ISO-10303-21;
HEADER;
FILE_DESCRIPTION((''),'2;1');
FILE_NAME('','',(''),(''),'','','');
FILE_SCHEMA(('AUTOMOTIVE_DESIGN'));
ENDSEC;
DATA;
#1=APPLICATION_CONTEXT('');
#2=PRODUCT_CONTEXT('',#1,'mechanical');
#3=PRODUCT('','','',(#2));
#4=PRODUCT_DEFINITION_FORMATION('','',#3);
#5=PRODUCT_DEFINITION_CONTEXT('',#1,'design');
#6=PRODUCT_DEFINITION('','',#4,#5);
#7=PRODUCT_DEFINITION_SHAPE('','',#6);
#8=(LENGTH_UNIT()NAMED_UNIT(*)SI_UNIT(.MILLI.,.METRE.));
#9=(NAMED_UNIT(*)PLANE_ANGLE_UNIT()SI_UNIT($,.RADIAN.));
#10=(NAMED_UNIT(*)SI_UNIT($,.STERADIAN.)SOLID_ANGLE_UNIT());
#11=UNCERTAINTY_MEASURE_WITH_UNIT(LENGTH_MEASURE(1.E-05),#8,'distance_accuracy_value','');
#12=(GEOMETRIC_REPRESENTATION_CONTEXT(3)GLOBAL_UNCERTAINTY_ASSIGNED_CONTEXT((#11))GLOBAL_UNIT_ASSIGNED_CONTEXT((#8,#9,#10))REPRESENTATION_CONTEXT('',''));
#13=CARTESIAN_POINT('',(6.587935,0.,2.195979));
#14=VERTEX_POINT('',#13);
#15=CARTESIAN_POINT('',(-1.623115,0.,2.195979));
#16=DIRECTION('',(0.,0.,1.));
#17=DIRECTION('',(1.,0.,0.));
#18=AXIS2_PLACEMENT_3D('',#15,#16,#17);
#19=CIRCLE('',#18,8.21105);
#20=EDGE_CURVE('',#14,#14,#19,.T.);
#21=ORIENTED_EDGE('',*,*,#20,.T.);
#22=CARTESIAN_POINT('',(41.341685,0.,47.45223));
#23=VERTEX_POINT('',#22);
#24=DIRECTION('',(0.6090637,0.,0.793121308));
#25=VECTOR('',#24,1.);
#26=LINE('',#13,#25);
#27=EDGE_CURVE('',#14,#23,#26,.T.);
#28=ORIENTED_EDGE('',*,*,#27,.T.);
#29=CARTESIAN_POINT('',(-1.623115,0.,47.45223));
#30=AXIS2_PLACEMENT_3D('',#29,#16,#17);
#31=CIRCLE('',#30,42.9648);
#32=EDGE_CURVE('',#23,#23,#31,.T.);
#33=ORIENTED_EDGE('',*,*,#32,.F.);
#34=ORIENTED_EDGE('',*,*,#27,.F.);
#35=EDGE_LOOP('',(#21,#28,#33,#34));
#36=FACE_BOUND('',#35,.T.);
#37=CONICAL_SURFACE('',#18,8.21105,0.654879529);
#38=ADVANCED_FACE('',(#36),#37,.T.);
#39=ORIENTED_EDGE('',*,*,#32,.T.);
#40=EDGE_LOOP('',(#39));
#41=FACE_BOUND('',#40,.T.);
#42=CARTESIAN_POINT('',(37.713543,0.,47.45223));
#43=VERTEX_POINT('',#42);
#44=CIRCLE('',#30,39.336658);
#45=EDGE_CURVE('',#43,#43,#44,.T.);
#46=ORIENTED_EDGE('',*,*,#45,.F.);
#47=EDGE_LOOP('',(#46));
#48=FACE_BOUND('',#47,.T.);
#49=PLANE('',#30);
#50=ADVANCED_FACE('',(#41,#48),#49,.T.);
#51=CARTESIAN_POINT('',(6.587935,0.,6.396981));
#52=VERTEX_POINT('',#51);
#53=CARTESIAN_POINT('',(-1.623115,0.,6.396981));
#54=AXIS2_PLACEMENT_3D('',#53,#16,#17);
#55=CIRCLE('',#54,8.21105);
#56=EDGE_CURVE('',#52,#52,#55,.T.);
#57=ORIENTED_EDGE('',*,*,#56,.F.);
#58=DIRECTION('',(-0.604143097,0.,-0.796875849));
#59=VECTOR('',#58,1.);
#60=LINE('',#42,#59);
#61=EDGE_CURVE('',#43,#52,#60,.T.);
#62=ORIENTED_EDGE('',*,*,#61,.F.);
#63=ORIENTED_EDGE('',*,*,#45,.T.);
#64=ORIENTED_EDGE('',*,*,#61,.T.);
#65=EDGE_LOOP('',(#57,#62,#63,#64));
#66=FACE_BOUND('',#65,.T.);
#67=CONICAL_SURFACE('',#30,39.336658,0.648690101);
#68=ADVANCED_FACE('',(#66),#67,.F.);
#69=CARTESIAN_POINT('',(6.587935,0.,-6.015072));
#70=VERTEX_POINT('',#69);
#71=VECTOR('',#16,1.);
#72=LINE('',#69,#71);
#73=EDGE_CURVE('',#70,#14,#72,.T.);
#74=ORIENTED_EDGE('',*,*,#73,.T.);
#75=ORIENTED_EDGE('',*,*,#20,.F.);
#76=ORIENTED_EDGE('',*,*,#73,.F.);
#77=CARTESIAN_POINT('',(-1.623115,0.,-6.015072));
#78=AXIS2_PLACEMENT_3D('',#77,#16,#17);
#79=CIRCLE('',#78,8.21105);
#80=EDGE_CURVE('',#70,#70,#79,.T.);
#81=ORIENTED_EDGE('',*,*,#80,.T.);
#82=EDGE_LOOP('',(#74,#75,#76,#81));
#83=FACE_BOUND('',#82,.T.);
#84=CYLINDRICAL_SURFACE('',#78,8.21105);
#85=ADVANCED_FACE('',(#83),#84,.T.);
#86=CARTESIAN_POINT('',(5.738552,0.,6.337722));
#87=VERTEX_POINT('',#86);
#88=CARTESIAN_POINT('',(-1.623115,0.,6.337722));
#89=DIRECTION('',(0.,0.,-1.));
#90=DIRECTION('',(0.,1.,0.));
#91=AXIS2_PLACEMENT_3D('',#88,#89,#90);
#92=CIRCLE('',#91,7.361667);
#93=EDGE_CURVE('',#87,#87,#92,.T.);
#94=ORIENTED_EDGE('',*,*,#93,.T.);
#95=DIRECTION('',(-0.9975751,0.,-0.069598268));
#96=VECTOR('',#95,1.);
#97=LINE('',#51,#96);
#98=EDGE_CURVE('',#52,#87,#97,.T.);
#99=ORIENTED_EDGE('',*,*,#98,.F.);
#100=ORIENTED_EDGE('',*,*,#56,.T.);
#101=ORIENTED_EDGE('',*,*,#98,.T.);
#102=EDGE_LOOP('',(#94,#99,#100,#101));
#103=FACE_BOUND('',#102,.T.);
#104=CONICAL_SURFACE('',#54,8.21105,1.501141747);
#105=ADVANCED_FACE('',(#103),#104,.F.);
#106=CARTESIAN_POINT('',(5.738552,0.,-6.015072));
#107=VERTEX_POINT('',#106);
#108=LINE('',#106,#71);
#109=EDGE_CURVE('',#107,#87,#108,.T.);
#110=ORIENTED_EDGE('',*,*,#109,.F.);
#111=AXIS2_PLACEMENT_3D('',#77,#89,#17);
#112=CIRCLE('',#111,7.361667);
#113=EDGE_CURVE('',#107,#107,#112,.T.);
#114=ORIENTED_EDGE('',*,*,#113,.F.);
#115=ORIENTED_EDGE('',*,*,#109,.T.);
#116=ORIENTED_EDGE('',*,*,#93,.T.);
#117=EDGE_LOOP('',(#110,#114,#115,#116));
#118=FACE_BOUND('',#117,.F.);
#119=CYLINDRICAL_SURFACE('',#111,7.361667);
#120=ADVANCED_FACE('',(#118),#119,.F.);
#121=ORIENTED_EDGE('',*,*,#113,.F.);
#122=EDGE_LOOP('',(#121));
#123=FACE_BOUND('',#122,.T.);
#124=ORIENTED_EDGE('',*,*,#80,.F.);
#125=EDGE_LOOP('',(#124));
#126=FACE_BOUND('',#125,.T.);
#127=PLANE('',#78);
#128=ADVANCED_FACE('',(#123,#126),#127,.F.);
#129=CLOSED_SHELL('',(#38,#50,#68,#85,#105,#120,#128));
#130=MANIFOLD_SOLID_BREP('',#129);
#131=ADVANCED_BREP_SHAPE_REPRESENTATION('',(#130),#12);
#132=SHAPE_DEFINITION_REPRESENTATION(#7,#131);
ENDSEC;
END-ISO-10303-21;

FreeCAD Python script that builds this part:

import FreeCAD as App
import Part
import Sketcher

V = App.Vector
Q = App.Units.Quantity


def add_polygon(sketch, points):
    """Adds a closed chain of lines whose ends are joined by coincident constraints."""
    first, n = sketch.GeometryCount, len(points)
    for a, b in zip(points, points[1:] + points[:1]):
        sketch.addGeometry(Part.LineSegment(App.Vector(*a, 0), App.Vector(*b, 0)), False)
    for i in range(n):
        sketch.addConstraint(Sketcher.Constraint("Coincident", first + i, 2, first + (i + 1) % n, 1))

doc = App.newDocument("Part")
body = doc.addObject("PartDesign::Body", "Body")

# Sketch on XZ plane
sketch1 = doc.addObject("Sketcher::SketchObject", "Sketch")
body.addObject(sketch1)
sketch1.AttachmentSupport = (doc.XZ_Plane, [""])
sketch1.MapMode = "FlatFace"
add_polygon(sketch1, [(37.7, 47.5), (6.6, 6.4), (-1.6, 5.8), (-1.6, -6), (6.6, -6), (6.6, 2.2), (41.3, 47.5)])  # lines 0-6
sketch1.addGeometry(Part.LineSegment(V(-1.6, -6, 0), V(-1.6, 47.5, 0)), True)  # axis
sketch1.addConstraint(Sketcher.Constraint("Vertical", 2))
sketch1.addConstraint(Sketcher.Constraint("Horizontal", 3))
sketch1.addConstraint(Sketcher.Constraint("Vertical", 4))
sketch1.addConstraint(Sketcher.Constraint("Horizontal", 6))
sketch1.addConstraint(Sketcher.Constraint("Vertical", 7))
sketch1.addConstraint(Sketcher.Constraint("Coincident", 7, 1, 2, 2))
sketch1.addConstraint(Sketcher.Constraint("Horizontal", 6, 2, 7, 2))
sketch1.addConstraint(Sketcher.Constraint("Vertical", 0, 2, 3, 2))
sketch1.addConstraint(Sketcher.Constraint("Equal", 3, 4))
sketch1.addConstraint(Sketcher.Constraint("DistanceX", 3, 1, 3, 2, 8.21105))
sketch1.addConstraint(Sketcher.Constraint("DistanceX", 6, 2, 6, 1, 3.628142))
sketch1.addConstraint(Sketcher.Constraint("DistanceY", 2, 2, 2, 1, 11.839189))
sketch1.addConstraint(Sketcher.Constraint("DistanceX", 1, 2, 5, 2, 42.9648))
sketch1.addConstraint(Sketcher.Constraint("Distance", 1, 8.231009))
sketch1.addConstraint(Sketcher.Constraint("DistanceY", 7, 1, 7, 2, 53.467302))
sketch1.addConstraint(Sketcher.Constraint("DistanceY", -1, 1, 0, 2, 6.396981))
sketch1.addConstraint(Sketcher.Constraint("DistanceX", -1, 1, 0, 2, 6.587935))
revolution = doc.addObject("PartDesign::Revolution", "Revolution")
body.addObject(revolution)
revolution.Profile = sketch1
revolution.ReferenceAxis = (sketch1, ["Axis0"])
revolution.Angle = 360

# Sketch on XY plane
sketch2 = doc.addObject("Sketcher::SketchObject", "Sketch001")
body.addObject(sketch2)
sketch2.AttachmentSupport = (doc.XY_Plane, [""])
sketch2.MapMode = "FlatFace"
sketch2.AttachmentOffset = App.Placement(V(0, 0, -6.015072), App.Rotation())
sketch2.addGeometry(Part.Circle(V(-2, 0, 0), V(0, 0, 1), 7), False)
sketch2.addConstraint(Sketcher.Constraint("PointOnObject", 0, 3, -1))
sketch2.addConstraint(Sketcher.Constraint("Diameter", 0, 14.723334))
sketch2.addConstraint(Sketcher.Constraint("DistanceX", 0, 3, -1, 1, 1.623115))
pocket1 = doc.addObject("PartDesign::Pocket", "Pocket")
body.addObject(pocket1)
pocket1.Profile = sketch2
pocket1.Length = Q("1 in")
pocket1.Reversed = True

doc.recompute()
